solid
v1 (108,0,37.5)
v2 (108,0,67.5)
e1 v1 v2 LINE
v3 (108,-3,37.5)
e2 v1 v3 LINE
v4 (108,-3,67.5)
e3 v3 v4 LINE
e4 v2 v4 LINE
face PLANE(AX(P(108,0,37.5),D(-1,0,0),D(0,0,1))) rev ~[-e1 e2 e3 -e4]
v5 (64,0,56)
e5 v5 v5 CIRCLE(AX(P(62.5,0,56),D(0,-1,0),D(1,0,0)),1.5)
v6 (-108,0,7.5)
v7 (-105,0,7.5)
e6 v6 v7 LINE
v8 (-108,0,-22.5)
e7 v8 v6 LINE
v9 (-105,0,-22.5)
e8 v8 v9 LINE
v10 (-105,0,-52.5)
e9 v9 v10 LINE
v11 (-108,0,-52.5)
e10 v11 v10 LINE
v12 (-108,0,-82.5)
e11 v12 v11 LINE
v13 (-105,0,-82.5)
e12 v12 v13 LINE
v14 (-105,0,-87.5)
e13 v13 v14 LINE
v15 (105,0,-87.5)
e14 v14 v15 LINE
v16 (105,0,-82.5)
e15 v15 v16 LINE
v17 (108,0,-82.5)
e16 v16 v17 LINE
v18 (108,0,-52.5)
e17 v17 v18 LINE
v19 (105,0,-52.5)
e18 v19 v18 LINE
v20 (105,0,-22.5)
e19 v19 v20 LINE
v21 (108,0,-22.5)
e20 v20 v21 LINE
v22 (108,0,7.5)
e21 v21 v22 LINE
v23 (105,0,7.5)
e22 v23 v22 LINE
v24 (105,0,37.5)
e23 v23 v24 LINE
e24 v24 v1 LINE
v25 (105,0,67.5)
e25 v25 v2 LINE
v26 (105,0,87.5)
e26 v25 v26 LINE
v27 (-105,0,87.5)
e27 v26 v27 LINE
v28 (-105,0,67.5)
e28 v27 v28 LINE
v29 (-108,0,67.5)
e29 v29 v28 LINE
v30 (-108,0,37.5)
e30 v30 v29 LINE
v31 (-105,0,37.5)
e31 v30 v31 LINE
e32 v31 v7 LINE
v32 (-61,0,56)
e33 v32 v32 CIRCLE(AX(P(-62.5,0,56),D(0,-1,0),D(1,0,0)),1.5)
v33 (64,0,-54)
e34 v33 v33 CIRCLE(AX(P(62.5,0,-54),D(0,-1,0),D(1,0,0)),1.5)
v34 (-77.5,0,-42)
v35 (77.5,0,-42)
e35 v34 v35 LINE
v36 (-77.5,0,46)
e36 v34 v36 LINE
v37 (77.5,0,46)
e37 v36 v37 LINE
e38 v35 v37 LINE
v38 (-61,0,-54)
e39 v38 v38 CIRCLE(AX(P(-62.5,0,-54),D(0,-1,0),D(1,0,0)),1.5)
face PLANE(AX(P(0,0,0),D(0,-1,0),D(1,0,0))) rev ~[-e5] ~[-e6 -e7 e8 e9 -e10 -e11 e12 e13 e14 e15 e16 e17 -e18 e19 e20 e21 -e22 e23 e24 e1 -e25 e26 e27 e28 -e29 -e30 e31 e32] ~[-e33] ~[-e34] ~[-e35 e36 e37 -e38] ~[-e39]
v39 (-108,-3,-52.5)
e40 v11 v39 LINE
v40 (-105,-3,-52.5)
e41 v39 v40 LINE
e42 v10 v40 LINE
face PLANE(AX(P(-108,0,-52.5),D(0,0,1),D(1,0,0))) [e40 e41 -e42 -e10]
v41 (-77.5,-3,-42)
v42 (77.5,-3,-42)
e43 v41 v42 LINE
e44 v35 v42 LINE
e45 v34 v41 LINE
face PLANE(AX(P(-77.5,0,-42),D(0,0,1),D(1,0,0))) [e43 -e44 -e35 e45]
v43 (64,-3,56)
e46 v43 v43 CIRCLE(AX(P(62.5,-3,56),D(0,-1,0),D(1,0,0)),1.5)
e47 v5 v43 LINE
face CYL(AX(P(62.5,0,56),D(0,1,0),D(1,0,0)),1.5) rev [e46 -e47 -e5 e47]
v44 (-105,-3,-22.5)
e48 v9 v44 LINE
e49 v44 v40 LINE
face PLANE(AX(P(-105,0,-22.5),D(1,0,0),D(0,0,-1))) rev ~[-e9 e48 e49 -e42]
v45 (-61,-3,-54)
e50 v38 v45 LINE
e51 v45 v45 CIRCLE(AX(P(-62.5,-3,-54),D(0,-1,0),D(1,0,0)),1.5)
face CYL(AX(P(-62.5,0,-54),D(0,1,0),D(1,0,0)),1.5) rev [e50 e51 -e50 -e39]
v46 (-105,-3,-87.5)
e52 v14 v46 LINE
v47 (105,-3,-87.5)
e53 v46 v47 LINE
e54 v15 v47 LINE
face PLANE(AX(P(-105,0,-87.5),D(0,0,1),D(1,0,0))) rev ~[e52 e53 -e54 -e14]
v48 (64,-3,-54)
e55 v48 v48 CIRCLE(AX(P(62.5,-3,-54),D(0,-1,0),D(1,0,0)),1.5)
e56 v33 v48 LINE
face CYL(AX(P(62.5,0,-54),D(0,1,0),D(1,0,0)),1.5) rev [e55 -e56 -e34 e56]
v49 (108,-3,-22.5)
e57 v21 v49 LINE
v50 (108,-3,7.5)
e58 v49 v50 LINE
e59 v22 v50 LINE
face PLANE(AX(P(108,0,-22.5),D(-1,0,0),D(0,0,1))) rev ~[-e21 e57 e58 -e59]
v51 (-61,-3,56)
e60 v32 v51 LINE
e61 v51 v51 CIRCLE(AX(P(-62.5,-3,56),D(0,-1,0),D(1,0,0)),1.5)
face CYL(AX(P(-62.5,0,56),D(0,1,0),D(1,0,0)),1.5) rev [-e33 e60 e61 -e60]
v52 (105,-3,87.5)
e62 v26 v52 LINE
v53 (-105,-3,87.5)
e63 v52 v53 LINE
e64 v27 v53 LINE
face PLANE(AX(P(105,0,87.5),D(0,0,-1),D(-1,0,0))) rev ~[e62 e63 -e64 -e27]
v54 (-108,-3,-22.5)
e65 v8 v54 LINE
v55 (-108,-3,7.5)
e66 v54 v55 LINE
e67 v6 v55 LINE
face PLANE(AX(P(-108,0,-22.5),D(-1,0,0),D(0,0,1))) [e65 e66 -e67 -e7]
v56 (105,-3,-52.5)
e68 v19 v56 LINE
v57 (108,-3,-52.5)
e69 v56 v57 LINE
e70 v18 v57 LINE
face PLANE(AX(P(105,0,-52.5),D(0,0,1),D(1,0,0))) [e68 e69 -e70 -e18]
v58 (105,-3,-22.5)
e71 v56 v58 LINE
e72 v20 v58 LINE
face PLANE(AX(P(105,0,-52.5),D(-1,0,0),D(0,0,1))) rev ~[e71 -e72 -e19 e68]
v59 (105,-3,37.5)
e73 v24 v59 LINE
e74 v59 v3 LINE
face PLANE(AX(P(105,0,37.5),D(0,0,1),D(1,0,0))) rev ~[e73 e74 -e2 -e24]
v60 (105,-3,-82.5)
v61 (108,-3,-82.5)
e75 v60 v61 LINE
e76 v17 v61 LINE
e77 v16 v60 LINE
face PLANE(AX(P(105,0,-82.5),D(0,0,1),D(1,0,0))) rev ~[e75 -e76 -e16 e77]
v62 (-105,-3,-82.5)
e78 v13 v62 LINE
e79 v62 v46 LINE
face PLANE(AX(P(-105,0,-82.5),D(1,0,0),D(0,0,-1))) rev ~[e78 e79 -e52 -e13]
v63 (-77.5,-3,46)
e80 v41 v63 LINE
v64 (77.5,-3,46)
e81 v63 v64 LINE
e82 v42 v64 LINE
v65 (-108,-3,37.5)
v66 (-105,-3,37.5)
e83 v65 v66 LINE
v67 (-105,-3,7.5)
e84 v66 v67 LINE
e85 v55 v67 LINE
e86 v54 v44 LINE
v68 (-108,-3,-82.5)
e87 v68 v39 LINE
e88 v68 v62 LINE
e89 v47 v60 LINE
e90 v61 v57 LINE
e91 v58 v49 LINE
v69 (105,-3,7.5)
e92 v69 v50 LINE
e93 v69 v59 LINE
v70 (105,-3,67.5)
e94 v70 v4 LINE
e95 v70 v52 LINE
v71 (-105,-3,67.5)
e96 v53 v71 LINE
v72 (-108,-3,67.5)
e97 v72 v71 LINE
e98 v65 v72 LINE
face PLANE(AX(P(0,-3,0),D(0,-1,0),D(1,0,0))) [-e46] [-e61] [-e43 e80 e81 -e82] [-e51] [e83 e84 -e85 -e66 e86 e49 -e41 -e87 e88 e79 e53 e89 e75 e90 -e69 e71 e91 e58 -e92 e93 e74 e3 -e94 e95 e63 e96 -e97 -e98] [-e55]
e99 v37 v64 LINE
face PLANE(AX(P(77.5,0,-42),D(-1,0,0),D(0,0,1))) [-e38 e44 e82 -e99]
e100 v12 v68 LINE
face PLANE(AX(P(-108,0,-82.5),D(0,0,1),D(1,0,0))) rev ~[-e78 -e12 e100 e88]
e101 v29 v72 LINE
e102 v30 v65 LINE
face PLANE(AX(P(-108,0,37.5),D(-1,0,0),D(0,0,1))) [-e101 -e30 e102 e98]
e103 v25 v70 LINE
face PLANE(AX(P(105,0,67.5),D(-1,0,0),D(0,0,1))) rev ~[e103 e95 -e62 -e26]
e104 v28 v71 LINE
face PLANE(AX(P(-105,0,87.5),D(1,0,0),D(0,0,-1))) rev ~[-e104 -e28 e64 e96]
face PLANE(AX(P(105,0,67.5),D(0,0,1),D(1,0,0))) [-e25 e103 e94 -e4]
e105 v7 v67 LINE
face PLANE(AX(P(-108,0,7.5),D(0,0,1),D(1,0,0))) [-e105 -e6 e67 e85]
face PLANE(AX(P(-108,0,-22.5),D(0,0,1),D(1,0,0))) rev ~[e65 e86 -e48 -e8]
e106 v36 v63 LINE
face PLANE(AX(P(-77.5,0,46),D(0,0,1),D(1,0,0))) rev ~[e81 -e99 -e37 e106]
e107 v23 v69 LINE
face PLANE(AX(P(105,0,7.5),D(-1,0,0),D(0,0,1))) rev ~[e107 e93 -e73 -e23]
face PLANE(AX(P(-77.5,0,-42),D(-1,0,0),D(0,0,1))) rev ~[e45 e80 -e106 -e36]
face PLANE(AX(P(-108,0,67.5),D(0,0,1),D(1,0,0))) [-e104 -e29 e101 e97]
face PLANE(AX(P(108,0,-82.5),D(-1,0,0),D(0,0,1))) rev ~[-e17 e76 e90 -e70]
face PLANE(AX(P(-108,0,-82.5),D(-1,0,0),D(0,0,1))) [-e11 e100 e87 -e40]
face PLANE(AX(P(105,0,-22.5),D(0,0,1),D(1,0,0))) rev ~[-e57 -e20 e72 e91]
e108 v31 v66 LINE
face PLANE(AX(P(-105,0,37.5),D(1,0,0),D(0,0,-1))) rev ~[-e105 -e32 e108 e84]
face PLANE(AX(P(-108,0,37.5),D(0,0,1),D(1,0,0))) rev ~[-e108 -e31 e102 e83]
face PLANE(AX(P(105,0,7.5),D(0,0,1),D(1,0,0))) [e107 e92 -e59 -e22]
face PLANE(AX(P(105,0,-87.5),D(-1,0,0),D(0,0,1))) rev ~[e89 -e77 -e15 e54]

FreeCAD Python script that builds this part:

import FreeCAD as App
import Part
import Sketcher
from FreeCAD import Vector


def add_polygon(sketch, points):
    """Adds a closed chain of lines whose ends are joined by coincident constraints."""
    first, n = sketch.GeometryCount, len(points)
    for a, b in zip(points, points[1:] + points[:1]):
        sketch.addGeometry(Part.LineSegment(App.Vector(*a, 0), App.Vector(*b, 0)), False)
    for i in range(n):
        sketch.addConstraint(Sketcher.Constraint("Coincident", first + i, 2, first + (i + 1) % n, 1))

doc = App.newDocument("Part")
body = doc.addObject("PartDesign::Body", "Body")

# Sketch on XZ plane
sketch1 = body.newObject("Sketcher::SketchObject", "Sketch")
sketch1.AttachmentSupport = (doc.getObject("XZ_Plane"), [""])
sketch1.MapMode = "FlatFace"
add_polygon(sketch1, [(105, 87.5), (-105, 87.5), (-105, 67.5), (-108, 67.5), (-108, 37.5), (-105, 37.5), (-105, 7.5), (-108, 7.5), (-108, -22.5), (-105, -22.5), (-105, -52.5), (-108, -52.5), (-108, -82.5), (-105, -82.5), (-105, -87.5), (105, -87.5), (105, -82.5), (108, -82.5), (108, -52.5), (105, -52.5), (105, -22.5), (108, -22.5), (108, 7.5), (105, 7.5), (105, 37.5), (108, 37.5), (108, 67.5), (105, 67.5)])  # lines 0-27
sketch1.addGeometry(Part.Circle(Vector(-62.5, -54, 0), Vector(0, 0, 1), 1.5), False)  # 28
sketch1.addGeometry(Part.Circle(Vector(62.5, -54, 0), Vector(0, 0, 1), 1.5), False)  # 29
sketch1.addGeometry(Part.Circle(Vector(-62.5, 56, 0), Vector(0, 0, 1), 1.5), False)  # 30
add_polygon(sketch1, [(77.5, -42), (-77.5, -42), (-77.5, 46), (77.5, 46)])  # lines 31-34
sketch1.addGeometry(Part.Circle(Vector(62.5, 56, 0), Vector(0, 0, 1), 1.5), False)  # 35
sketch1.addConstraint([
    Sketcher.Constraint("Horizontal", 0),
    Sketcher.Constraint("Vertical", 1),
    Sketcher.Constraint("Horizontal", 2),
    Sketcher.Constraint("Vertical", 3),
    Sketcher.Constraint("Horizontal", 4),
    Sketcher.Constraint("Vertical", 5),
    Sketcher.Constraint("Horizontal", 6),
    Sketcher.Constraint("Vertical", 7),
    Sketcher.Constraint("Horizontal", 8),
    Sketcher.Constraint("Vertical", 9),
    Sketcher.Constraint("Horizontal", 10),
    Sketcher.Constraint("Vertical", 11),
    Sketcher.Constraint("Horizontal", 12),
    Sketcher.Constraint("Vertical", 13),
    Sketcher.Constraint("Horizontal", 14),
    Sketcher.Constraint("Vertical", 15),
    Sketcher.Constraint("Horizontal", 16),
    Sketcher.Constraint("Vertical", 17),
    Sketcher.Constraint("Horizontal", 18),
    Sketcher.Constraint("Vertical", 19),
    Sketcher.Constraint("Horizontal", 20),
    Sketcher.Constraint("Vertical", 21),
    Sketcher.Constraint("Horizontal", 22),
    Sketcher.Constraint("Vertical", 23),
    Sketcher.Constraint("Horizontal", 24),
    Sketcher.Constraint("Vertical", 25),
    Sketcher.Constraint("Horizontal", 26),
    Sketcher.Constraint("Vertical", 27),
    Sketcher.Constraint("Horizontal", 31),
    Sketcher.Constraint("Vertical", 32),
    Sketcher.Constraint("Horizontal", 33),
    Sketcher.Constraint("Vertical", 34),
    Sketcher.Constraint("Equal", 28, 29),
    Sketcher.Constraint("Equal", 29, 30),
    Sketcher.Constraint("Equal", 30, 35),
    Sketcher.Constraint("Symmetric", 0, 2, 14, 2, -1, 1),
    Sketcher.Constraint("Symmetric", 28, 3, 29, 3, -2),
    Sketcher.Constraint("Symmetric", 30, 3, 35, 3, -2),
    Sketcher.Constraint("Symmetric", 12, 2, 15, 2, -2),
    Sketcher.Constraint("Symmetric", 10, 2, 17, 2, -2),
    Sketcher.Constraint("Symmetric", 8, 2, 19, 2, -2),
    Sketcher.Constraint("Symmetric", 6, 2, 21, 2, -2),
    Sketcher.Constraint("Symmetric", 4, 2, 23, 2, -2),
    Sketcher.Constraint("Symmetric", 2, 2, 25, 2, -2),
    Sketcher.Constraint("Vertical", 28, 3, 30, 3),
    Sketcher.Constraint("Vertical", 1, 2, 4, 2),
    Sketcher.Constraint("Vertical", 3, 2, 6, 2),
    Sketcher.Constraint("Vertical", 5, 2, 8, 2),
    Sketcher.Constraint("Vertical", 7, 2, 10, 2),
    Sketcher.Constraint("Vertical", 23, 2, 26, 2),
    Sketcher.Constraint("Equal", 3, 5),
    Sketcher.Constraint("Equal", 5, 7),
    Sketcher.Constraint("Equal", 7, 9),
    Sketcher.Constraint("Equal", 9, 11),
    Sketcher.Constraint("Diameter", 28, 3.0),
    Sketcher.Constraint("DistanceX", 0, 2, 0, 1, 210.0),
    Sketcher.Constraint("DistanceX", 2, 2, 2, 1, 3.0),
    Sketcher.Constraint("DistanceX", 31, 2, 31, 1, 155.0),
    Sketcher.Constraint("DistanceY", 1, 2, 1, 1, 20.0),
    Sketcher.Constraint("DistanceY", 3, 2, 3, 1, 30.0),
    Sketcher.Constraint("DistanceY", 13, 2, 13, 1, 5.0),
    Sketcher.Constraint("DistanceY", 32, 1, 32, 2, 88.0),
    Sketcher.Constraint("DistanceY", 28, 3, -1, 1, 54.0),
    Sketcher.Constraint("DistanceY", -1, 1, 30, 3, 56.0),
    Sketcher.Constraint("DistanceY", 31, 2, -1, 1, 42.0),
    Sketcher.Constraint("DistanceX", 28, 3, 29, 3, 125.0),
    Sketcher.Constraint("DistanceX", 31, 2, 28, 3, 15.0),
])
pad1 = body.newObject("PartDesign::Pad", "Pad")
pad1.Profile = sketch1
pad1.Length = 3

doc.recompute()
